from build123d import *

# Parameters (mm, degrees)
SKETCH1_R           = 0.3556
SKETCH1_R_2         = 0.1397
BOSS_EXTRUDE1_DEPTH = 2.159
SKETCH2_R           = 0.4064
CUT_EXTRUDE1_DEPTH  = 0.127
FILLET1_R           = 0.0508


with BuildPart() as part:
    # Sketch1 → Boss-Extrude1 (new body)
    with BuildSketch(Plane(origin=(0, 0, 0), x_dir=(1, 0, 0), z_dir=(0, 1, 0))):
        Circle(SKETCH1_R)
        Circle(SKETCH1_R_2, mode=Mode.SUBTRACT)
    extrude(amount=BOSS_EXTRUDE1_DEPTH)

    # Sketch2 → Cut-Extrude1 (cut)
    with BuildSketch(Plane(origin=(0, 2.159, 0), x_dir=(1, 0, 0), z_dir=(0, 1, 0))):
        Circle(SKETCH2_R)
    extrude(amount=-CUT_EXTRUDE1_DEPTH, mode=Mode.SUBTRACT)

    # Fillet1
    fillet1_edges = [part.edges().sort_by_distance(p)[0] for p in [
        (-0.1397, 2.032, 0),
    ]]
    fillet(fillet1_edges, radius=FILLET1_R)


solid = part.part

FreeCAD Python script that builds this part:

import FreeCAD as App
import Part
import Sketcher
Q = App.Units.Quantity


def edges_at(feature, points):
    """Names of the edges that pass closest to the given points."""
    edges = feature.Shape.Edges
    near = lambda p: min(range(len(edges)), key=lambda i: edges[i].distToShape(Part.Vertex(*p))[0])
    return sorted({f"Edge{near(p) + 1}" for p in points})

doc = App.newDocument("Part")
body = doc.addObject("PartDesign::Body", "Body")

# Sketch on XZ plane
sketch1 = body.newObject("Sketcher::SketchObject", "Sketch")
sketch1.AttachmentSupport = (doc.getObject("XZ_Plane"), [""])
sketch1.MapMode = "FlatFace"
sketch1.addGeometry(Part.Circle(App.Vector(0, 0, 0), App.Vector(0, 0, 1), 0.36), False)
sketch1.addGeometry(Part.Circle(App.Vector(0, 0, 0), App.Vector(0, 0, 1), 0.14), False)
sketch1.addConstraint(Sketcher.Constraint("Coincident", 0, 3, -1, 1))
sketch1.addConstraint(Sketcher.Constraint("Coincident", 1, 3, -1, 1))
sketch1.addConstraint(Sketcher.Constraint("Diameter", 0, Q("0.028 in")))
sketch1.addConstraint(Sketcher.Constraint("Diameter", 1, Q("0.011 in")))
pad1 = body.newObject("PartDesign::Pad", "Pad")
pad1.Profile = sketch1
pad1.Length = Q("0.085 in")
pad1.Reversed = True

# Sketch on XZ plane
sketch2 = body.newObject("Sketcher::SketchObject", "Sketch001")
sketch2.AttachmentSupport = (doc.getObject("XZ_Plane"), [""])
sketch2.MapMode = "FlatFace"
sketch2.AttachmentOffset = App.Placement(App.Vector(0, 0, -0.085 * 25.4), App.Rotation())
sketch2.addGeometry(Part.Circle(App.Vector(0, 0, 0), App.Vector(0, 0, 1), 0.41), False)
sketch2.addConstraint(Sketcher.Constraint("Coincident", 0, 3, -1, 1))
sketch2.addConstraint(Sketcher.Constraint("Diameter", 0, Q("0.032 in")))
pocket1 = body.newObject("PartDesign::Pocket", "Pocket")
pocket1.Profile = sketch2
pocket1.Length = Q("0.005 in")
pocket1.Reversed = True
doc.recompute()

fillet = body.newObject("PartDesign::Fillet", "Fillet")
fillet.Base = (pocket1, edges_at(pocket1, [(-0.14, 2.032, 0)]))
fillet.Radius = Q("0.002 in")

doc.recompute()
